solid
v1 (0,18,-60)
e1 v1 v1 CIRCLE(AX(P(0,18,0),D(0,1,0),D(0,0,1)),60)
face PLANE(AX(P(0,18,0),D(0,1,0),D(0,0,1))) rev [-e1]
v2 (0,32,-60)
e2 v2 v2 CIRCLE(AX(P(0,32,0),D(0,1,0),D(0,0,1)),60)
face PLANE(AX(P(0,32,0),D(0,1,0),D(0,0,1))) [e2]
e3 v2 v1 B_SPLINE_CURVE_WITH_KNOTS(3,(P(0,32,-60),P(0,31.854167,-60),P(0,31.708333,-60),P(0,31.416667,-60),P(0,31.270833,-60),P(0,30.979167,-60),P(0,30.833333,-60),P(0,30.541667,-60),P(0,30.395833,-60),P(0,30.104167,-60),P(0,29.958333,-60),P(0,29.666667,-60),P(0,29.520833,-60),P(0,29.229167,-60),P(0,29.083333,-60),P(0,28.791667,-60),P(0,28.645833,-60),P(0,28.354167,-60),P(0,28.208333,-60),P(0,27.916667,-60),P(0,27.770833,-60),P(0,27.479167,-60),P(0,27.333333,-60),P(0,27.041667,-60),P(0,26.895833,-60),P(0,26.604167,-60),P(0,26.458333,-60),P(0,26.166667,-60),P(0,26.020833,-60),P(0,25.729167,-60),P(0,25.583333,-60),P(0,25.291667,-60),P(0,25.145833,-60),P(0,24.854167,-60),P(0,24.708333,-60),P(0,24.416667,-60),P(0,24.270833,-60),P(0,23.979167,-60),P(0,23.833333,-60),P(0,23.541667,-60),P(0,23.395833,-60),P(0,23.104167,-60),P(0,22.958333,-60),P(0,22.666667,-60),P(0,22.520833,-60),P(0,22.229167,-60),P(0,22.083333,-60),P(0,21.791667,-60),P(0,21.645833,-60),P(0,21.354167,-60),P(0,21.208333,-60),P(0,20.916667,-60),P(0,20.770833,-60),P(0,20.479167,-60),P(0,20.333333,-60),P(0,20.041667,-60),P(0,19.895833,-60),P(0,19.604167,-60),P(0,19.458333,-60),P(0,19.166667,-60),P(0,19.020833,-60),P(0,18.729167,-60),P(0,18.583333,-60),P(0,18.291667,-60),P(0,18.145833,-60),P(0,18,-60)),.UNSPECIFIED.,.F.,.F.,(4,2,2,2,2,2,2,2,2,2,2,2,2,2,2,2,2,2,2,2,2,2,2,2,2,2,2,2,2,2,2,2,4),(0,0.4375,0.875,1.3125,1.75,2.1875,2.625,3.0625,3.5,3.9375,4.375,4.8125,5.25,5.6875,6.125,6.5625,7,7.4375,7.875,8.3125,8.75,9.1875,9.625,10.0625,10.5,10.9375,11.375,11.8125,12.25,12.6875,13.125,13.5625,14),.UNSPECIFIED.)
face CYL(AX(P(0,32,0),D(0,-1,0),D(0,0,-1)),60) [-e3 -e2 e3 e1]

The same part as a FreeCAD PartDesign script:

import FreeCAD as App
import Part
import Sketcher
from FreeCAD import Vector
Q = App.Units.Quantity

doc = App.newDocument("Part")
params = doc.addObject("Spreadsheet::Sheet", "Params")
for row, (alias, value) in enumerate([
    ("sketch1_diameter", "120 mm"),
    ("pad1_length", "14 mm"),
], start=1):
    params.set(f"A{row}", alias)
    params.set(f"B{row}", "=" + value)
    params.setAlias(f"B{row}", alias)

body = doc.addObject("PartDesign::Body", "Body")

sketch1 = doc.addObject("Sketcher::SketchObject", "Sketch")
body.addObject(sketch1)
sketch1.AttachmentSupport = (doc.XZ_Plane, [""])
sketch1.MapMode = "FlatFace"
sketch1.AttachmentOffset = App.Placement(Vector(0, 0, -18), App.Rotation())
sketch1.addGeometry(Part.Circle(Vector(0, 0, 0), Vector(0, 0, 1), 60), False)
sketch1.addConstraint([
    Sketcher.Constraint("Coincident", 0, 3, -1, 1),
    Sketcher.Constraint("Diameter", 0, Q("120 mm")),
])
sketch1.setExpression("Constraints[1]", "Params.sketch1_diameter")
pad1 = doc.addObject("PartDesign::Pad", "Pad")
body.addObject(pad1)
pad1.Profile = sketch1
pad1.setExpression("Length", "Params.pad1_length")
pad1.Reversed = True

doc.recompute()
